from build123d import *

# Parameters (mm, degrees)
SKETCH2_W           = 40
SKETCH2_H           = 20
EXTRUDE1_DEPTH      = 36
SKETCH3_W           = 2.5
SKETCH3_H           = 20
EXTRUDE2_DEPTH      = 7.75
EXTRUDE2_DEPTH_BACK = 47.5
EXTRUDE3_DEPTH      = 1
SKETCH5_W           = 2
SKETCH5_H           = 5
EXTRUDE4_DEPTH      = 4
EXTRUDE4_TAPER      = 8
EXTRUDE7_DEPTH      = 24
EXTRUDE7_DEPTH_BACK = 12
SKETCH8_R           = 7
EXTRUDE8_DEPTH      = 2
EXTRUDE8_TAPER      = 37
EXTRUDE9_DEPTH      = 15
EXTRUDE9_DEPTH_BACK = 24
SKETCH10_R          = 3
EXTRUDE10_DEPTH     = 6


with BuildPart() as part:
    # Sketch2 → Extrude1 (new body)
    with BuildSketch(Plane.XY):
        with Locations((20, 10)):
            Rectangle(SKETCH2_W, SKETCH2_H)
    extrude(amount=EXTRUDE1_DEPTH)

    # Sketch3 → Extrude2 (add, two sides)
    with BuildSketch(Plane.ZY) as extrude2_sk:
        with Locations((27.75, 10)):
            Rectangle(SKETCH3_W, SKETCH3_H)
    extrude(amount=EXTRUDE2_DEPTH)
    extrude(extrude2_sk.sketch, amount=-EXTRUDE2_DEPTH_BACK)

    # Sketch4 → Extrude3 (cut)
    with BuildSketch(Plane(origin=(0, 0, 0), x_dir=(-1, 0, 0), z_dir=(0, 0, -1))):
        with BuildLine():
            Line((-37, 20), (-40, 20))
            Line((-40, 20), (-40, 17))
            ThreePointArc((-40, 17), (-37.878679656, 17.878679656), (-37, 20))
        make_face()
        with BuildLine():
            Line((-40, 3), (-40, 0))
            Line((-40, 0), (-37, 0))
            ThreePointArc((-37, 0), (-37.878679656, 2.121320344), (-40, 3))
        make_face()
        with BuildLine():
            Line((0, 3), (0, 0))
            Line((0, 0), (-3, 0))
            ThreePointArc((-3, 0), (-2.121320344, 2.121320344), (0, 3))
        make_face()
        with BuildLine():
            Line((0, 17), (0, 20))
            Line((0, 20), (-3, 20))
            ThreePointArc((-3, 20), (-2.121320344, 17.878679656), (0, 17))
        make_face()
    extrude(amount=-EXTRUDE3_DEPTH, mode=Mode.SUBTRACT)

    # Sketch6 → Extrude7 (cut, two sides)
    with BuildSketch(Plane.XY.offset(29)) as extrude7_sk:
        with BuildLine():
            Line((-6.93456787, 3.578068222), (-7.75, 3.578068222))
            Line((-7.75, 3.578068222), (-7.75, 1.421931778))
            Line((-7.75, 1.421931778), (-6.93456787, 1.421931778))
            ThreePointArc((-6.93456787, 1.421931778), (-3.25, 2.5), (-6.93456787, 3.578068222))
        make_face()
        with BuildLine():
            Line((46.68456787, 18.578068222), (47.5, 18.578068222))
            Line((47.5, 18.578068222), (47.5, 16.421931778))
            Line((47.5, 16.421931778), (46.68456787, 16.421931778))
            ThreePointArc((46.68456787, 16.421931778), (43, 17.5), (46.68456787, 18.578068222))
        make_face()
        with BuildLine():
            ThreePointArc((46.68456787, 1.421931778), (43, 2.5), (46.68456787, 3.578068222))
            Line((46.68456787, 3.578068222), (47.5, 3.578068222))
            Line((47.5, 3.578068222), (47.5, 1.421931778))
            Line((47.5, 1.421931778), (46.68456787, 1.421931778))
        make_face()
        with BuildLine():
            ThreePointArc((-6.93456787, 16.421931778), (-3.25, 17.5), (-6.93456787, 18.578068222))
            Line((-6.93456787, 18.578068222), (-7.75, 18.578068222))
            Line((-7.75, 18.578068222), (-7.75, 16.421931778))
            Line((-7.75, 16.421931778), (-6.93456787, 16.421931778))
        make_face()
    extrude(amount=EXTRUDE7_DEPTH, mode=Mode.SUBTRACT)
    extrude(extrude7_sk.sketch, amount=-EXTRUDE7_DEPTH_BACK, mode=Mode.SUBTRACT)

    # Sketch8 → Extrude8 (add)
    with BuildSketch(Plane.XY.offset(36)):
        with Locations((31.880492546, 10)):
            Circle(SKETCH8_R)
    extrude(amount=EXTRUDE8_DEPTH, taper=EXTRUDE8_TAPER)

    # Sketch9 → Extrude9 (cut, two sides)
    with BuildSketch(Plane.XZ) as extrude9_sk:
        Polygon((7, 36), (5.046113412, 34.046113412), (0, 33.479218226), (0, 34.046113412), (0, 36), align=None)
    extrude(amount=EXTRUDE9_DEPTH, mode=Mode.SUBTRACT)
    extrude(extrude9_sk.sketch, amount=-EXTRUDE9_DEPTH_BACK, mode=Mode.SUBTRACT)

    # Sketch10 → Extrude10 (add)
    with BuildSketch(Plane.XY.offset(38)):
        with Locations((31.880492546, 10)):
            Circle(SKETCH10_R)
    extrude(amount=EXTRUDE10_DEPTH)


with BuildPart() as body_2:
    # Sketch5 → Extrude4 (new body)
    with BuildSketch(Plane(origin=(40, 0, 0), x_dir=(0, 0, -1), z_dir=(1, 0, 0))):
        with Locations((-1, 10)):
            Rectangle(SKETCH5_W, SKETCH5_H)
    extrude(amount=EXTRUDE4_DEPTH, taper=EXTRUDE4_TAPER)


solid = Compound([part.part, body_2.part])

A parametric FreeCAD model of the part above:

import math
import FreeCAD as App
import Part
import Sketcher
from FreeCAD import Vector
Q = App.Units.Quantity

doc = App.newDocument("Part")
params = doc.addObject("Spreadsheet::Sheet", "Params")
for row, (alias, value) in enumerate([
    ("sketch1_width", "40 mm"),
    ("sketch1_height", "20 mm"),
    ("pad1_length", "36 mm"),
    ("sketch2_width", "20 mm"),
    ("sketch2_height", "2.5 mm"),
    ("pad2_length", "7.75 mm"),
    ("pad2_length2", "47.5 mm"),
    ("sketch3_radius", "3 mm"),
    ("pocket1_length", "1 mm"),
    ("sketch4_radius", "2 mm"),
    ("sketch5_diameter", "14 mm"),
    ("pad3_length", "2 mm"),
    ("pad3_taper", "-37 deg"),
    ("sketch6_width", "7 mm"),
    ("sketch7_diameter", "6 mm"),
    ("pad4_length", "6 mm"),
    ("sketch8_width", "5 mm"),
    ("sketch8_height", "2 mm"),
    ("pad5_length", "4 mm"),
    ("pad5_taper", "-8 deg"),
], start=1):
    params.set(f"A{row}", alias)
    params.set(f"B{row}", "=" + value)
    params.setAlias(f"B{row}", alias)

body = doc.addObject("PartDesign::Body", "Body")

# Sketch on XY plane
sketch1 = body.newObject("Sketcher::SketchObject", "Sketch")
sketch1.AttachmentSupport = (doc.getObject("XY_Plane"), [""])
sketch1.MapMode = "FlatFace"
sketch1.addGeometry([
    Part.LineSegment(Vector(0, 20, 0), Vector(0, 0, 0)),
    Part.LineSegment(Vector(0, 0, 0), Vector(40, 0, 0)),
    Part.LineSegment(Vector(40, 0, 0), Vector(40, 20, 0)),
    Part.LineSegment(Vector(40, 20, 0), Vector(0, 20, 0)),
], False)
sketch1.addConstraint([
    Sketcher.Constraint("Coincident", 0, 2, 1, 1),
    Sketcher.Constraint("Coincident", 1, 2, 2, 1),
    Sketcher.Constraint("Coincident", 2, 2, 3, 1),
    Sketcher.Constraint("Coincident", 3, 2, 0, 1),
    Sketcher.Constraint("Vertical", 0),
    Sketcher.Constraint("Horizontal", 1),
    Sketcher.Constraint("Vertical", 2),
    Sketcher.Constraint("Horizontal", 3),
    Sketcher.Constraint("Coincident", 0, 2, -1, 1),
    Sketcher.Constraint("DistanceX", 1, 1, 1, 2, Q("40 mm")),
    Sketcher.Constraint("DistanceY", 0, 2, 0, 1, Q("20 mm")),
])
sketch1.setExpression("Constraints[9]", "Params.sketch1_width")
sketch1.setExpression("Constraints[10]", "Params.sketch1_height")
pad1 = body.newObject("PartDesign::Pad", "Pad")
pad1.Profile = sketch1
pad1.setExpression("Length", "Params.pad1_length")

# Sketch on YZ plane
sketch2 = body.newObject("Sketcher::SketchObject", "Sketch001")
sketch2.AttachmentSupport = (doc.getObject("YZ_Plane"), [""])
sketch2.MapMode = "FlatFace"
sketch2.addGeometry([
    Part.LineSegment(Vector(20, 26.5, 0), Vector(0, 26.5, 0)),
    Part.LineSegment(Vector(0, 26.5, 0), Vector(0, 29, 0)),
    Part.LineSegment(Vector(0, 29, 0), Vector(20, 29, 0)),
    Part.LineSegment(Vector(20, 29, 0), Vector(20, 26.5, 0)),
], False)
sketch2.addConstraint([
    Sketcher.Constraint("Coincident", 0, 2, 1, 1),
    Sketcher.Constraint("Coincident", 1, 2, 2, 1),
    Sketcher.Constraint("Coincident", 2, 2, 3, 1),
    Sketcher.Constraint("Coincident", 3, 2, 0, 1),
    Sketcher.Constraint("Horizontal", 0),
    Sketcher.Constraint("Vertical", 1),
    Sketcher.Constraint("Horizontal", 2),
    Sketcher.Constraint("Vertical", 3),
    Sketcher.Constraint("PointOnObject", 0, 2, -2),
    Sketcher.Constraint("DistanceX", 0, 2, 0, 1, Q("20 mm")),
    Sketcher.Constraint("DistanceY", 1, 1, 1, 2, Q("2.5 mm")),
    Sketcher.Constraint("DistanceY", -1, 1, 1, 2, Q("29 mm")),
])
sketch2.setExpression("Constraints[9]", "Params.sketch2_width")
sketch2.setExpression("Constraints[10]", "Params.sketch2_height")
pad2 = body.newObject("PartDesign::Pad", "Pad001")
pad2.Profile = sketch2
pad2.Type = "TwoLengths"
pad2.setExpression("Length", "Params.pad2_length")
pad2.setExpression("Length2", "Params.pad2_length2")
pad2.Reversed = True

# Sketch on XY plane
sketch3 = body.newObject("Sketcher::SketchObject", "Sketch002")
sketch3.AttachmentSupport = (doc.getObject("XY_Plane"), [""])
sketch3.MapMode = "FlatFace"
sketch3.addGeometry([
    Part.LineSegment(Vector(37, 20, 0), Vector(40, 20, 0)),  # 0
    Part.LineSegment(Vector(40, 20, 0), Vector(40, 17, 0)),  # 1
    Part.ArcOfCircle(Part.Circle(Vector(40, 20, 0), Vector(0, 0, 1), 3), math.radians(180), math.radians(270)),  # 2
    Part.LineSegment(Vector(40, 3, 0), Vector(40, 0, 0)),  # 3
    Part.LineSegment(Vector(40, 0, 0), Vector(37, 0, 0)),  # 4
    Part.ArcOfCircle(Part.Circle(Vector(40, 0, 0), Vector(0, 0, 1), 3), math.radians(90), math.radians(180)),  # 5
    Part.LineSegment(Vector(0, 0, 0), Vector(0, 3, 0)),  # 6
    Part.ArcOfCircle(Part.Circle(Vector(0, 0, 0), Vector(0, 0, 1), 3), math.radians(0), math.radians(90)),  # 7
    Part.LineSegment(Vector(3, 0, 0), Vector(0, 0, 0)),  # 8
    Part.LineSegment(Vector(0, 17, 0), Vector(0, 20, 0)),  # 9
    Part.LineSegment(Vector(0, 20, 0), Vector(3, 20, 0)),  # 10
    Part.ArcOfCircle(Part.Circle(Vector(0, 20, 0), Vector(0, 0, 1), 3), math.radians(-90), math.radians(0)),  # 11
], False)
sketch3.addConstraint([
    Sketcher.Constraint("Coincident", 0, 2, 1, 1),
    Sketcher.Constraint("Coincident", 1, 2, 2, 2),
    Sketcher.Constraint("Coincident", 2, 1, 0, 1),
    Sketcher.Constraint("Coincident", 3, 2, 4, 1),
    Sketcher.Constraint("Coincident", 4, 2, 5, 2),
    Sketcher.Constraint("Coincident", 5, 1, 3, 1),
    Sketcher.Constraint("Coincident", 6, 2, 7, 2),
    Sketcher.Constraint("Coincident", 7, 1, 8, 1),
    Sketcher.Constraint("Coincident", 8, 2, 6, 1),
    Sketcher.Constraint("Coincident", 9, 2, 10, 1),
    Sketcher.Constraint("Coincident", 10, 2, 11, 2),
    Sketcher.Constraint("Coincident", 11, 1, 9, 1),
    Sketcher.Constraint("Horizontal", 0),
    Sketcher.Constraint("Vertical", 1),
    Sketcher.Constraint("Vertical", 3),
    Sketcher.Constraint("Horizontal", 4),
    Sketcher.Constraint("Vertical", 6),
    Sketcher.Constraint("Horizontal", 8),
    Sketcher.Constraint("Vertical", 9),
    Sketcher.Constraint("Horizontal", 10),
    Sketcher.Constraint("Coincident", 7, 3, -1, 1),
    Sketcher.Constraint("Coincident", 8, 2, -1, 1),
    Sketcher.Constraint("Coincident", 0, 2, 2, 3),
    Sketcher.Constraint("Coincident", 3, 2, 5, 3),
    Sketcher.Constraint("Coincident", 9, 2, 11, 3),
    Sketcher.Constraint("Equal", 2, 5),
    Sketcher.Constraint("Equal", 5, 7),
    Sketcher.Constraint("Equal", 7, 11),
    Sketcher.Constraint("PointOnObject", 5, 3, -1),
    Sketcher.Constraint("PointOnObject", 11, 3, -2),
    Sketcher.Constraint("Horizontal", 2, 3, 11, 3),
    Sketcher.Constraint("Vertical", 2, 3, 5, 3),
    Sketcher.Constraint("Radius", 2, Q("3 mm")),
    Sketcher.Constraint("DistanceX", -1, 1, 2, 3, Q("40 mm")),
    Sketcher.Constraint("DistanceY", -1, 1, 2, 3, Q("20 mm")),
])
sketch3.setExpression("Constraints[32]", "Params.sketch3_radius")
pocket1 = body.newObject("PartDesign::Pocket", "Pocket")
pocket1.Profile = sketch3
pocket1.setExpression("Length", "Params.pocket1_length")
pocket1.Reversed = True

# Sketch on XY plane
sketch4 = body.newObject("Sketcher::SketchObject", "Sketch003")
sketch4.AttachmentSupport = (doc.getObject("XY_Plane"), [""])
sketch4.MapMode = "FlatFace"
sketch4.AttachmentOffset = App.Placement(Vector(0, 0, 29), App.Rotation())
sketch4.addGeometry([
    Part.LineSegment(Vector(-6.9, 3.6, 0), Vector(-7.8, 3.6, 0)),  # 0
    Part.LineSegment(Vector(-7.8, 3.6, 0), Vector(-7.8, 1.4, 0)),  # 1
    Part.LineSegment(Vector(-7.8, 1.4, 0), Vector(-6.9, 1.4, 0)),  # 2
    Part.ArcOfCircle(Part.Circle(Vector(-5.2, 2.5, 0), Vector(0, 0, 1), 2), math.radians(-147), math.radians(147)),  # 3
    Part.LineSegment(Vector(47.5, 18.6, 0), Vector(46.7, 18.6, 0)),  # 4
    Part.ArcOfCircle(Part.Circle(Vector(45, 17.5, 0), Vector(0, 0, 1), 2), math.radians(33), math.radians(327)),  # 5
    Part.LineSegment(Vector(46.7, 16.4, 0), Vector(47.5, 16.4, 0)),  # 6
    Part.LineSegment(Vector(47.5, 16.4, 0), Vector(47.5, 18.6, 0)),  # 7
    Part.ArcOfCircle(Part.Circle(Vector(45, 2.5, 0), Vector(0, 0, 1), 2), math.radians(33), math.radians(327)),  # 8
    Part.LineSegment(Vector(46.7, 1.4, 0), Vector(47.5, 1.4, 0)),  # 9
    Part.LineSegment(Vector(47.5, 1.4, 0), Vector(47.5, 3.6, 0)),  # 10
    Part.LineSegment(Vector(47.5, 3.6, 0), Vector(46.7, 3.6, 0)),  # 11
    Part.ArcOfCircle(Part.Circle(Vector(-5.2, 17.5, 0), Vector(0, 0, 1), 2), math.radians(-147), math.radians(147)),  # 12
    Part.LineSegment(Vector(-6.9, 18.6, 0), Vector(-7.8, 18.6, 0)),  # 13
    Part.LineSegment(Vector(-7.8, 18.6, 0), Vector(-7.8, 16.4, 0)),  # 14
    Part.LineSegment(Vector(-7.8, 16.4, 0), Vector(-6.9, 16.4, 0)),  # 15
], False)
sketch4.addConstraint([
    Sketcher.Constraint("Coincident", 0, 2, 1, 1),
    Sketcher.Constraint("Coincident", 1, 2, 2, 1),
    Sketcher.Constraint("Coincident", 2, 2, 3, 1),
    Sketcher.Constraint("Coincident", 3, 2, 0, 1),
    Sketcher.Constraint("Coincident", 4, 2, 5, 1),
    Sketcher.Constraint("Coincident", 5, 2, 6, 1),
    Sketcher.Constraint("Coincident", 6, 2, 7, 1),
    Sketcher.Constraint("Coincident", 7, 2, 4, 1),
    Sketcher.Constraint("Coincident", 8, 2, 9, 1),
    Sketcher.Constraint("Coincident", 9, 2, 10, 1),
    Sketcher.Constraint("Coincident", 10, 2, 11, 1),
    Sketcher.Constraint("Coincident", 11, 2, 8, 1),
    Sketcher.Constraint("Coincident", 12, 2, 13, 1),
    Sketcher.Constraint("Coincident", 13, 2, 14, 1),
    Sketcher.Constraint("Coincident", 14, 2, 15, 1),
    Sketcher.Constraint("Coincident", 15, 2, 12, 1),
    Sketcher.Constraint("Horizontal", 0),
    Sketcher.Constraint("Vertical", 1),
    Sketcher.Constraint("Horizontal", 2),
    Sketcher.Constraint("Horizontal", 4),
    Sketcher.Constraint("Horizontal", 6),
    Sketcher.Constraint("Vertical", 7),
    Sketcher.Constraint("Horizontal", 9),
    Sketcher.Constraint("Vertical", 10),
    Sketcher.Constraint("Horizontal", 11),
    Sketcher.Constraint("Horizontal", 13),
    Sketcher.Constraint("Vertical", 14),
    Sketcher.Constraint("Horizontal", 15),
    Sketcher.Constraint("Equal", 3, 5),
    Sketcher.Constraint("Equal", 5, 8),
    Sketcher.Constraint("Equal", 8, 12),
    Sketcher.Constraint("Horizontal", 3, 3, 8, 3),
    Sketcher.Constraint("Horizontal", 5, 3, 12, 3),
    Sketcher.Constraint("Horizontal", 2, 2, 8, 2),
    Sketcher.Constraint("Horizontal", 3, 2, 10, 2),
    Sketcher.Constraint("Horizontal", 7, 2, 12, 2),
    Sketcher.Constraint("Horizontal", 6, 2, 14, 2),
    Sketcher.Constraint("Vertical", 5, 3, 8, 3),
    Sketcher.Constraint("Vertical", 3, 3, 12, 3),
    Sketcher.Constraint("Vertical", 2, 2, 3, 2),
    Sketcher.Constraint("Vertical", 4, 2, 5, 2),
    Sketcher.Constraint("Vertical", 5, 2, 8, 2),
    Sketcher.Constraint("Vertical", 7, 2, 9, 2),
    Sketcher.Constraint("Vertical", 1, 2, 13, 2),
    Sketcher.Constraint("Equal", 2, 4),
    Sketcher.Constraint("Radius", 3, Q("2 mm")),
    Sketcher.Constraint("DistanceX", -1, 1, 5, 3, Q("45 mm")),
    Sketcher.Constraint("DistanceY", 3, 3, 5, 3, Q("15 mm")),
    Sketcher.Constraint("DistanceY", -1, 1, 3, 3, Q("2.5 mm")),
    Sketcher.Constraint("DistanceX", -1, 1, 6, 2, Q("47.5 mm")),
    Sketcher.Constraint("DistanceX", 3, 3, -1, 1, Q("5.25 mm")),
    Sketcher.Constraint("DistanceX", 0, 2, 0, 1, Q("0.815432 mm")),
])
sketch4.setExpression("Constraints[45]", "Params.sketch4_radius")
pocket2 = body.newObject("PartDesign::Pocket", "Pocket001")
pocket2.Profile = sketch4
pocket2.Type = "ThroughAll"
pocket2.Midplane = True

# Sketch on XY plane
sketch5 = body.newObject("Sketcher::SketchObject", "Sketch004")
sketch5.AttachmentSupport = (doc.getObject("XY_Plane"), [""])
sketch5.MapMode = "FlatFace"
sketch5.AttachmentOffset = App.Placement(Vector(0, 0, 36), App.Rotation())
sketch5.addGeometry(Part.Circle(Vector(32, 10, 0), Vector(0, 0, 1), 7), False)
sketch5.addConstraint([
    Sketcher.Constraint("Diameter", 0, Q("14 mm")),
    Sketcher.Constraint("DistanceY", -1, 1, 0, 3, Q("10 mm")),
    Sketcher.Constraint("DistanceX", -1, 1, 0, 3, Q("31.880493 mm")),
])
sketch5.setExpression("Constraints[0]", "Params.sketch5_diameter")
pad3 = body.newObject("PartDesign::Pad", "Pad002")
pad3.Profile = sketch5
pad3.setExpression("Length", "Params.pad3_length")
pad3.setExpression("TaperAngle", "Params.pad3_taper")

# Sketch on XZ plane
sketch6 = body.newObject("Sketcher::SketchObject", "Sketch005")
sketch6.AttachmentSupport = (doc.getObject("XZ_Plane"), [""])
sketch6.MapMode = "FlatFace"
sketch6.addGeometry([
    Part.LineSegment(Vector(5, 34, 0), Vector(7, 36, 0)),
    Part.LineSegment(Vector(7, 36, 0), Vector(0, 36, 0)),
    Part.LineSegment(Vector(0, 36, 0), Vector(0, 33.5, 0)),
    Part.LineSegment(Vector(0, 33.5, 0), Vector(5, 34, 0)),
], False)
sketch6.addConstraint([
    Sketcher.Constraint("Coincident", 0, 2, 1, 1),
    Sketcher.Constraint("Coincident", 1, 2, 2, 1),
    Sketcher.Constraint("Coincident", 2, 2, 3, 1),
    Sketcher.Constraint("Coincident", 3, 2, 0, 1),
    Sketcher.Constraint("Horizontal", 1),
    Sketcher.Constraint("Vertical", 2),
    Sketcher.Constraint("PointOnObject", 1, 2, -2),
    Sketcher.Constraint("DistanceX", 1, 2, 1, 1, Q("7 mm")),
    Sketcher.Constraint("Angle", 0, Q("45 deg")),
    Sketcher.Constraint("DistanceY", -1, 1, 0, 2, Q("36 mm")),
    Sketcher.Constraint("DistanceY", 2, 2, 2, 1, Q("2.520782 mm")),
    Sketcher.Constraint("Distance", 0, Q("2.763213 mm")),
])
sketch6.setExpression("Constraints[7]", "Params.sketch6_width")
pocket3 = body.newObject("PartDesign::Pocket", "Pocket002")
pocket3.Profile = sketch6
pocket3.Type = "ThroughAll"
pocket3.Midplane = True

# Sketch on XY plane
sketch7 = body.newObject("Sketcher::SketchObject", "Sketch006")
sketch7.AttachmentSupport = (doc.getObject("XY_Plane"), [""])
sketch7.MapMode = "FlatFace"
sketch7.AttachmentOffset = App.Placement(Vector(0, 0, 38), App.Rotation())
sketch7.addGeometry(Part.Circle(Vector(31.9, 10, 0), Vector(0, 0, 1), 3), False)
sketch7.addConstraint([
    Sketcher.Constraint("Diameter", 0, Q("6 mm")),
    Sketcher.Constraint("DistanceY", -1, 1, 0, 3, Q("10 mm")),
    Sketcher.Constraint("DistanceX", -1, 1, 0, 3, Q("31.880493 mm")),
])
sketch7.setExpression("Constraints[0]", "Params.sketch7_diameter")
pad4 = body.newObject("PartDesign::Pad", "Pad003")
pad4.Profile = sketch7
pad4.setExpression("Length", "Params.pad4_length")
body2 = doc.addObject("PartDesign::Body", "Body001")

# Sketch on YZ plane
sketch8 = body2.newObject("Sketcher::SketchObject", "Sketch007")
sketch8.AttachmentSupport = (doc.getObject("YZ_Plane001"), [""])
sketch8.MapMode = "FlatFace"
sketch8.AttachmentOffset = App.Placement(Vector(0, 0, 40), App.Rotation())
sketch8.addGeometry([
    Part.LineSegment(Vector(12.5, 2, 0), Vector(7.5, 2, 0)),
    Part.LineSegment(Vector(7.5, 2, 0), Vector(7.5, 0, 0)),
    Part.LineSegment(Vector(7.5, 0, 0), Vector(12.5, 0, 0)),
    Part.LineSegment(Vector(12.5, 0, 0), Vector(12.5, 2, 0)),
], False)
sketch8.addConstraint([
    Sketcher.Constraint("Coincident", 0, 2, 1, 1),
    Sketcher.Constraint("Coincident", 1, 2, 2, 1),
    Sketcher.Constraint("Coincident", 2, 2, 3, 1),
    Sketcher.Constraint("Coincident", 3, 2, 0, 1),
    Sketcher.Constraint("Horizontal", 0),
    Sketcher.Constraint("Vertical", 1),
    Sketcher.Constraint("Horizontal", 2),
    Sketcher.Constraint("Vertical", 3),
    Sketcher.Constraint("PointOnObject", 1, 2, -1),
    Sketcher.Constraint("DistanceX", 0, 2, 0, 1, Q("5 mm")),
    Sketcher.Constraint("DistanceY", 1, 2, 1, 1, Q("2 mm")),
    Sketcher.Constraint("DistanceX", -1, 1, 0, 2, Q("7.5 mm")),
])
sketch8.setExpression("Constraints[9]", "Params.sketch8_width")
sketch8.setExpression("Constraints[10]", "Params.sketch8_height")
pad5 = body2.newObject("PartDesign::Pad", "Pad004")
pad5.Profile = sketch8
pad5.setExpression("Length", "Params.pad5_length")
pad5.setExpression("TaperAngle", "Params.pad5_taper")

doc.recompute()
